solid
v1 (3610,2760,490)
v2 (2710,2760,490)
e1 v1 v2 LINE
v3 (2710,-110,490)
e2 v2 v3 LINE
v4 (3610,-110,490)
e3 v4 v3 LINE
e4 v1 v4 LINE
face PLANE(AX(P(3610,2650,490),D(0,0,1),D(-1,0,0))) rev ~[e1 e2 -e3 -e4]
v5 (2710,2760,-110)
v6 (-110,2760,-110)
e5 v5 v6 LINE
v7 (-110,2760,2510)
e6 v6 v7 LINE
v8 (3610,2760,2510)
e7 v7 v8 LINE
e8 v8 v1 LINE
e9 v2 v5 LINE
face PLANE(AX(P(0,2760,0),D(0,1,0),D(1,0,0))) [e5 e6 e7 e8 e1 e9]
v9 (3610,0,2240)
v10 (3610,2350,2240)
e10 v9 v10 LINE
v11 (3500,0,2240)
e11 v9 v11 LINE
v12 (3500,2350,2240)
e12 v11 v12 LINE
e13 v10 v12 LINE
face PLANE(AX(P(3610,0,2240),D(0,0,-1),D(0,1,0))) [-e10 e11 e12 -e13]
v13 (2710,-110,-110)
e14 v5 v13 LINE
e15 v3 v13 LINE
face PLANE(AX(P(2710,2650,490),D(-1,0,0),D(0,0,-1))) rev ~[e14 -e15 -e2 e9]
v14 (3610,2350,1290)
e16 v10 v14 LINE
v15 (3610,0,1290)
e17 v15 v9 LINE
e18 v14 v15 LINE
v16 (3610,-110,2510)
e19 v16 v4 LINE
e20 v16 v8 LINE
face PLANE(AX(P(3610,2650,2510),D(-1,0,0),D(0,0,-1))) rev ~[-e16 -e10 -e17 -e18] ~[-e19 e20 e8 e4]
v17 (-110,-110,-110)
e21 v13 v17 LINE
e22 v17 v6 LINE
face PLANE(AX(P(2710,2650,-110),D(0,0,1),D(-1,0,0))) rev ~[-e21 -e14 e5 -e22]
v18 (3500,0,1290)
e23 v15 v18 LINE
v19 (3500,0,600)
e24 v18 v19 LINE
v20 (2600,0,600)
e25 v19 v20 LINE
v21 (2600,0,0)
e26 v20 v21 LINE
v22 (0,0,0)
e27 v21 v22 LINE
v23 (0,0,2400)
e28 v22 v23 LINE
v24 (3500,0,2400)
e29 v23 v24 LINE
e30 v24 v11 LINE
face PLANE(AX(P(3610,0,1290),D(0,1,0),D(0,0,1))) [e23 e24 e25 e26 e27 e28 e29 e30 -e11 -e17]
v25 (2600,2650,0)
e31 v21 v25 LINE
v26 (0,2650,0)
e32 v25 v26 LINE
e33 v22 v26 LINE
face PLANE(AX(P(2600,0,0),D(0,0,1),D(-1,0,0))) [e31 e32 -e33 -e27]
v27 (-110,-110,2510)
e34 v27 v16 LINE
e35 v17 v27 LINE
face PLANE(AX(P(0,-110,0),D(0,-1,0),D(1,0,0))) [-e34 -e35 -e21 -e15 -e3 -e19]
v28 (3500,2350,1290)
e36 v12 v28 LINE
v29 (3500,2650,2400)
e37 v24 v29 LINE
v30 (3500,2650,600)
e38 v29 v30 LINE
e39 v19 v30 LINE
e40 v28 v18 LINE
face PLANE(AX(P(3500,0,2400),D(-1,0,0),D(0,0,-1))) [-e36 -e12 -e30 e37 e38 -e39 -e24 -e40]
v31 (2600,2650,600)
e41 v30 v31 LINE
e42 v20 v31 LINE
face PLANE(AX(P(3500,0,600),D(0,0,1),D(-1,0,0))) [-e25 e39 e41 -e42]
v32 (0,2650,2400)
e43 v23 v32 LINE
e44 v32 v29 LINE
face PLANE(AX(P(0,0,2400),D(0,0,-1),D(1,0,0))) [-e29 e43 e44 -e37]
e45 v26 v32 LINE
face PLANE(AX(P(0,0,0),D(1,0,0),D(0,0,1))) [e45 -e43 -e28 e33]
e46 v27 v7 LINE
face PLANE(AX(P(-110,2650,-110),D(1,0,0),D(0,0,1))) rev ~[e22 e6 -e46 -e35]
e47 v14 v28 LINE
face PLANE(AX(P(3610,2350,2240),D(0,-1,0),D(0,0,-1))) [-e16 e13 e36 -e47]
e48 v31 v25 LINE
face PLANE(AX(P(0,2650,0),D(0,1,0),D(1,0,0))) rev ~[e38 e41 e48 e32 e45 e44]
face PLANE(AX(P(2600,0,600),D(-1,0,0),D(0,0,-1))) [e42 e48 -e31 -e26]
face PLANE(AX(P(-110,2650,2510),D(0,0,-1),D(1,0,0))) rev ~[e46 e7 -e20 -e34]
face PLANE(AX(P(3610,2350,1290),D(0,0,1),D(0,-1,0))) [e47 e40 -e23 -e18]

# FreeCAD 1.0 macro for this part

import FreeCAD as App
import Part
import Sketcher
from FreeCAD import Vector

doc = App.newDocument("Part")
body = doc.addObject("PartDesign::Body", "Body")

# Sketch on XZ plane
sketch1 = body.newObject("Sketcher::SketchObject", "Sketch")
sketch1.AttachmentSupport = (doc.getObject("XZ_Plane"), [""])
sketch1.MapMode = "FlatFace"
sketch1.addGeometry(Part.LineSegment(Vector(-110, -110, 0), Vector(-110, 2510, 0)), False)
sketch1.addGeometry(Part.LineSegment(Vector(-110, 2510, 0), Vector(3610, 2510, 0)), False)
sketch1.addGeometry(Part.LineSegment(Vector(3610, 2510, 0), Vector(3610, 490, 0)), False)
sketch1.addGeometry(Part.LineSegment(Vector(3610, 490, 0), Vector(2710, 490, 0)), False)
sketch1.addGeometry(Part.LineSegment(Vector(2710, 490, 0), Vector(2710, -110, 0)), False)
sketch1.addGeometry(Part.LineSegment(Vector(2710, -110, 0), Vector(-110, -110, 0)), False)
sketch1.addGeometry(Part.LineSegment(Vector(0, 2400, 0), Vector(0, 0, 0)), False)
sketch1.addGeometry(Part.LineSegment(Vector(0, 0, 0), Vector(2600, 0, 0)), False)
sketch1.addGeometry(Part.LineSegment(Vector(2600, 0, 0), Vector(2600, 600, 0)), False)
sketch1.addGeometry(Part.LineSegment(Vector(2600, 600, 0), Vector(3500, 600, 0)), False)
sketch1.addGeometry(Part.LineSegment(Vector(3500, 600, 0), Vector(3500, 2400, 0)), False)
sketch1.addGeometry(Part.LineSegment(Vector(3500, 2400, 0), Vector(0, 2400, 0)), False)
sketch1.addConstraint(Sketcher.Constraint("Coincident", 0, 2, 1, 1))
sketch1.addConstraint(Sketcher.Constraint("Coincident", 1, 2, 2, 1))
sketch1.addConstraint(Sketcher.Constraint("Coincident", 2, 2, 3, 1))
sketch1.addConstraint(Sketcher.Constraint("Coincident", 3, 2, 4, 1))
sketch1.addConstraint(Sketcher.Constraint("Coincident", 4, 2, 5, 1))
sketch1.addConstraint(Sketcher.Constraint("Coincident", 5, 2, 0, 1))
sketch1.addConstraint(Sketcher.Constraint("Coincident", 6, 2, 7, 1))
sketch1.addConstraint(Sketcher.Constraint("Coincident", 7, 2, 8, 1))
sketch1.addConstraint(Sketcher.Constraint("Coincident", 8, 2, 9, 1))
sketch1.addConstraint(Sketcher.Constraint("Coincident", 9, 2, 10, 1))
sketch1.addConstraint(Sketcher.Constraint("Coincident", 10, 2, 11, 1))
sketch1.addConstraint(Sketcher.Constraint("Coincident", 11, 2, 6, 1))
sketch1.addConstraint(Sketcher.Constraint("Vertical", 0))
sketch1.addConstraint(Sketcher.Constraint("Horizontal", 1))
sketch1.addConstraint(Sketcher.Constraint("Vertical", 2))
sketch1.addConstraint(Sketcher.Constraint("Horizontal", 3))
sketch1.addConstraint(Sketcher.Constraint("Vertical", 4))
sketch1.addConstraint(Sketcher.Constraint("Horizontal", 5))
sketch1.addConstraint(Sketcher.Constraint("Vertical", 6))
sketch1.addConstraint(Sketcher.Constraint("Horizontal", 7))
sketch1.addConstraint(Sketcher.Constraint("Vertical", 8))
sketch1.addConstraint(Sketcher.Constraint("Horizontal", 9))
sketch1.addConstraint(Sketcher.Constraint("Vertical", 10))
sketch1.addConstraint(Sketcher.Constraint("Horizontal", 11))
sketch1.addConstraint(Sketcher.Constraint("Coincident", 6, 2, -1, 1))
sketch1.addConstraint(Sketcher.Constraint("Equal", 3, 9))
sketch1.addConstraint(Sketcher.Constraint("Equal", 4, 8))
sketch1.addConstraint(Sketcher.Constraint("DistanceX", 3, 2, 3, 1, 900.0))
sketch1.addConstraint(Sketcher.Constraint("DistanceX", 11, 2, 11, 1, 3500.0))
sketch1.addConstraint(Sketcher.Constraint("DistanceY", 4, 2, 4, 1, 600.0))
sketch1.addConstraint(Sketcher.Constraint("DistanceY", 6, 2, 6, 1, 2400.0))
sketch1.addConstraint(Sketcher.Constraint("DistanceX", 0, 2, -1, 1, 110.0))
sketch1.addConstraint(Sketcher.Constraint("DistanceY", 4, 2, -1, 1, 110.0))
sketch1.addConstraint(Sketcher.Constraint("DistanceX", 7, 2, 4, 2, 110.0))
sketch1.addConstraint(Sketcher.Constraint("DistanceY", 10, 2, 1, 2, 110.0))
pad1 = body.newObject("PartDesign::Pad", "Pad")
pad1.Profile = sketch1
pad1.Length = 2650
pad1.Reversed = True

# Sketch on XZ plane
sketch2 = body.newObject("Sketcher::SketchObject", "Sketch001")
sketch2.AttachmentSupport = (doc.getObject("XZ_Plane"), [""])
sketch2.MapMode = "FlatFace"
sketch2.addGeometry(Part.LineSegment(Vector(3610, 490, 0), Vector(3610, 2510, 0)), False)
sketch2.addGeometry(Part.LineSegment(Vector(3610, 2510, 0), Vector(-110, 2510, 0)), False)
sketch2.addGeometry(Part.LineSegment(Vector(-110, 2510, 0), Vector(-110, -110, 0)), False)
sketch2.addGeometry(Part.LineSegment(Vector(-110, -110, 0), Vector(2710, -110, 0)), False)
sketch2.addGeometry(Part.LineSegment(Vector(2710, -110, 0), Vector(2710, 490, 0)), False)
sketch2.addGeometry(Part.LineSegment(Vector(2710, 490, 0), Vector(3610, 490, 0)), False)
sketch2.addConstraint(Sketcher.Constraint("Coincident", 0, 2, 1, 1))
sketch2.addConstraint(Sketcher.Constraint("Coincident", 1, 2, 2, 1))
sketch2.addConstraint(Sketcher.Constraint("Coincident", 2, 2, 3, 1))
sketch2.addConstraint(Sketcher.Constraint("Coincident", 3, 2, 4, 1))
sketch2.addConstraint(Sketcher.Constraint("Coincident", 4, 2, 5, 1))
sketch2.addConstraint(Sketcher.Constraint("Coincident", 5, 2, 0, 1))
sketch2.addConstraint(Sketcher.Constraint("Vertical", 0))
sketch2.addConstraint(Sketcher.Constraint("Horizontal", 1))
sketch2.addConstraint(Sketcher.Constraint("Vertical", 2))
sketch2.addConstraint(Sketcher.Constraint("Horizontal", 3))
sketch2.addConstraint(Sketcher.Constraint("Vertical", 4))
sketch2.addConstraint(Sketcher.Constraint("Horizontal", 5))
sketch2.addConstraint(Sketcher.Constraint("DistanceX", 1, 2, 1, 1, 3720.0))
sketch2.addConstraint(Sketcher.Constraint("DistanceX", 3, 1, 3, 2, 2820.0))
sketch2.addConstraint(Sketcher.Constraint("DistanceY", 0, 1, 0, 2, 2020.0))
sketch2.addConstraint(Sketcher.Constraint("DistanceY", 2, 2, 2, 1, 2620.0))
sketch2.addConstraint(Sketcher.Constraint("DistanceX", -1, 1, 0, 2, 3610.0))
sketch2.addConstraint(Sketcher.Constraint("DistanceY", -1, 1, 0, 2, 2510.0))
pad2 = body.newObject("PartDesign::Pad", "Pad001")
pad2.Profile = sketch2
pad2.Length = 110

# Sketch on XZ plane
sketch3 = body.newObject("Sketcher::SketchObject", "Sketch002")
sketch3.AttachmentSupport = (doc.getObject("XZ_Plane"), [""])
sketch3.MapMode = "FlatFace"
sketch3.AttachmentOffset = App.Placement(Vector(0, 0, -2650), App.Rotation())
sketch3.addGeometry(Part.LineSegment(Vector(2710, -110, 0), Vector(-110, -110, 0)), False)
sketch3.addGeometry(Part.LineSegment(Vector(-110, -110, 0), Vector(-110, 2510, 0)), False)
sketch3.addGeometry(Part.LineSegment(Vector(-110, 2510, 0), Vector(3610, 2510, 0)), False)
sketch3.addGeometry(Part.LineSegment(Vector(3610, 2510, 0), Vector(3610, 490, 0)), False)
sketch3.addGeometry(Part.LineSegment(Vector(3610, 490, 0), Vector(2710, 490, 0)), False)
sketch3.addGeometry(Part.LineSegment(Vector(2710, 490, 0), Vector(2710, -110, 0)), False)
sketch3.addConstraint(Sketcher.Constraint("Coincident", 0, 2, 1, 1))
sketch3.addConstraint(Sketcher.Constraint("Coincident", 1, 2, 2, 1))
sketch3.addConstraint(Sketcher.Constraint("Coincident", 2, 2, 3, 1))
sketch3.addConstraint(Sketcher.Constraint("Coincident", 3, 2, 4, 1))
sketch3.addConstraint(Sketcher.Constraint("Coincident", 4, 2, 5, 1))
sketch3.addConstraint(Sketcher.Constraint("Coincident", 5, 2, 0, 1))
sketch3.addConstraint(Sketcher.Constraint("Horizontal", 0))
sketch3.addConstraint(Sketcher.Constraint("Vertical", 1))
sketch3.addConstraint(Sketcher.Constraint("Horizontal", 2))
sketch3.addConstraint(Sketcher.Constraint("Vertical", 3))
sketch3.addConstraint(Sketcher.Constraint("Horizontal", 4))
sketch3.addConstraint(Sketcher.Constraint("Vertical", 5))
sketch3.addConstraint(Sketcher.Constraint("DistanceX", 0, 2, 0, 1, 2820.0))
sketch3.addConstraint(Sketcher.Constraint("DistanceX", 2, 1, 2, 2, 3720.0))
sketch3.addConstraint(Sketcher.Constraint("DistanceY", 1, 1, 1, 2, 2620.0))
sketch3.addConstraint(Sketcher.Constraint("DistanceY", 3, 2, 3, 1, 2020.0))
sketch3.addConstraint(Sketcher.Constraint("DistanceX", 0, 2, -1, 1, 110.0))
sketch3.addConstraint(Sketcher.Constraint("DistanceY", 0, 2, -1, 1, 110.0))
pad3 = body.newObject("PartDesign::Pad", "Pad002")
pad3.Profile = sketch3
pad3.Length = 110
pad3.Reversed = True

# Sketch on YZ plane
sketch4 = body.newObject("Sketcher::SketchObject", "Sketch003")
sketch4.AttachmentSupport = (doc.getObject("YZ_Plane"), [""])
sketch4.MapMode = "FlatFace"
sketch4.AttachmentOffset = App.Placement(Vector(0, 0, 3610), App.Rotation())
sketch4.addGeometry(Part.LineSegment(Vector(2350, 1290, 0), Vector(2350, 2240, 0)), False)
sketch4.addGeometry(Part.LineSegment(Vector(2350, 2240, 0), Vector(0, 2240, 0)), False)
sketch4.addGeometry(Part.LineSegment(Vector(0, 2240, 0), Vector(0, 1290, 0)), False)
sketch4.addGeometry(Part.LineSegment(Vector(0, 1290, 0), Vector(2350, 1290, 0)), False)
sketch4.addConstraint(Sketcher.Constraint("Coincident", 0, 2, 1, 1))
sketch4.addConstraint(Sketcher.Constraint("Coincident", 1, 2, 2, 1))
sketch4.addConstraint(Sketcher.Constraint("Coincident", 2, 2, 3, 1))
sketch4.addConstraint(Sketcher.Constraint("Coincident", 3, 2, 0, 1))
sketch4.addConstraint(Sketcher.Constraint("Vertical", 0))
sketch4.addConstraint(Sketcher.Constraint("Horizontal", 1))
sketch4.addConstraint(Sketcher.Constraint("Vertical", 2))
sketch4.addConstraint(Sketcher.Constraint("Horizontal", 3))
sketch4.addConstraint(Sketcher.Constraint("PointOnObject", 1, 2, -2))
sketch4.addConstraint(Sketcher.Constraint("DistanceX", 1, 2, 1, 1, 2350.0))
sketch4.addConstraint(Sketcher.Constraint("DistanceY", 0, 1, 0, 2, 950.0))
sketch4.addConstraint(Sketcher.Constraint("DistanceY", -1, 1, 0, 2, 2240.0))
pocket1 = body.newObject("PartDesign::Pocket", "Pocket")
pocket1.Profile = sketch4
pocket1.Length = 110

doc.recompute()
